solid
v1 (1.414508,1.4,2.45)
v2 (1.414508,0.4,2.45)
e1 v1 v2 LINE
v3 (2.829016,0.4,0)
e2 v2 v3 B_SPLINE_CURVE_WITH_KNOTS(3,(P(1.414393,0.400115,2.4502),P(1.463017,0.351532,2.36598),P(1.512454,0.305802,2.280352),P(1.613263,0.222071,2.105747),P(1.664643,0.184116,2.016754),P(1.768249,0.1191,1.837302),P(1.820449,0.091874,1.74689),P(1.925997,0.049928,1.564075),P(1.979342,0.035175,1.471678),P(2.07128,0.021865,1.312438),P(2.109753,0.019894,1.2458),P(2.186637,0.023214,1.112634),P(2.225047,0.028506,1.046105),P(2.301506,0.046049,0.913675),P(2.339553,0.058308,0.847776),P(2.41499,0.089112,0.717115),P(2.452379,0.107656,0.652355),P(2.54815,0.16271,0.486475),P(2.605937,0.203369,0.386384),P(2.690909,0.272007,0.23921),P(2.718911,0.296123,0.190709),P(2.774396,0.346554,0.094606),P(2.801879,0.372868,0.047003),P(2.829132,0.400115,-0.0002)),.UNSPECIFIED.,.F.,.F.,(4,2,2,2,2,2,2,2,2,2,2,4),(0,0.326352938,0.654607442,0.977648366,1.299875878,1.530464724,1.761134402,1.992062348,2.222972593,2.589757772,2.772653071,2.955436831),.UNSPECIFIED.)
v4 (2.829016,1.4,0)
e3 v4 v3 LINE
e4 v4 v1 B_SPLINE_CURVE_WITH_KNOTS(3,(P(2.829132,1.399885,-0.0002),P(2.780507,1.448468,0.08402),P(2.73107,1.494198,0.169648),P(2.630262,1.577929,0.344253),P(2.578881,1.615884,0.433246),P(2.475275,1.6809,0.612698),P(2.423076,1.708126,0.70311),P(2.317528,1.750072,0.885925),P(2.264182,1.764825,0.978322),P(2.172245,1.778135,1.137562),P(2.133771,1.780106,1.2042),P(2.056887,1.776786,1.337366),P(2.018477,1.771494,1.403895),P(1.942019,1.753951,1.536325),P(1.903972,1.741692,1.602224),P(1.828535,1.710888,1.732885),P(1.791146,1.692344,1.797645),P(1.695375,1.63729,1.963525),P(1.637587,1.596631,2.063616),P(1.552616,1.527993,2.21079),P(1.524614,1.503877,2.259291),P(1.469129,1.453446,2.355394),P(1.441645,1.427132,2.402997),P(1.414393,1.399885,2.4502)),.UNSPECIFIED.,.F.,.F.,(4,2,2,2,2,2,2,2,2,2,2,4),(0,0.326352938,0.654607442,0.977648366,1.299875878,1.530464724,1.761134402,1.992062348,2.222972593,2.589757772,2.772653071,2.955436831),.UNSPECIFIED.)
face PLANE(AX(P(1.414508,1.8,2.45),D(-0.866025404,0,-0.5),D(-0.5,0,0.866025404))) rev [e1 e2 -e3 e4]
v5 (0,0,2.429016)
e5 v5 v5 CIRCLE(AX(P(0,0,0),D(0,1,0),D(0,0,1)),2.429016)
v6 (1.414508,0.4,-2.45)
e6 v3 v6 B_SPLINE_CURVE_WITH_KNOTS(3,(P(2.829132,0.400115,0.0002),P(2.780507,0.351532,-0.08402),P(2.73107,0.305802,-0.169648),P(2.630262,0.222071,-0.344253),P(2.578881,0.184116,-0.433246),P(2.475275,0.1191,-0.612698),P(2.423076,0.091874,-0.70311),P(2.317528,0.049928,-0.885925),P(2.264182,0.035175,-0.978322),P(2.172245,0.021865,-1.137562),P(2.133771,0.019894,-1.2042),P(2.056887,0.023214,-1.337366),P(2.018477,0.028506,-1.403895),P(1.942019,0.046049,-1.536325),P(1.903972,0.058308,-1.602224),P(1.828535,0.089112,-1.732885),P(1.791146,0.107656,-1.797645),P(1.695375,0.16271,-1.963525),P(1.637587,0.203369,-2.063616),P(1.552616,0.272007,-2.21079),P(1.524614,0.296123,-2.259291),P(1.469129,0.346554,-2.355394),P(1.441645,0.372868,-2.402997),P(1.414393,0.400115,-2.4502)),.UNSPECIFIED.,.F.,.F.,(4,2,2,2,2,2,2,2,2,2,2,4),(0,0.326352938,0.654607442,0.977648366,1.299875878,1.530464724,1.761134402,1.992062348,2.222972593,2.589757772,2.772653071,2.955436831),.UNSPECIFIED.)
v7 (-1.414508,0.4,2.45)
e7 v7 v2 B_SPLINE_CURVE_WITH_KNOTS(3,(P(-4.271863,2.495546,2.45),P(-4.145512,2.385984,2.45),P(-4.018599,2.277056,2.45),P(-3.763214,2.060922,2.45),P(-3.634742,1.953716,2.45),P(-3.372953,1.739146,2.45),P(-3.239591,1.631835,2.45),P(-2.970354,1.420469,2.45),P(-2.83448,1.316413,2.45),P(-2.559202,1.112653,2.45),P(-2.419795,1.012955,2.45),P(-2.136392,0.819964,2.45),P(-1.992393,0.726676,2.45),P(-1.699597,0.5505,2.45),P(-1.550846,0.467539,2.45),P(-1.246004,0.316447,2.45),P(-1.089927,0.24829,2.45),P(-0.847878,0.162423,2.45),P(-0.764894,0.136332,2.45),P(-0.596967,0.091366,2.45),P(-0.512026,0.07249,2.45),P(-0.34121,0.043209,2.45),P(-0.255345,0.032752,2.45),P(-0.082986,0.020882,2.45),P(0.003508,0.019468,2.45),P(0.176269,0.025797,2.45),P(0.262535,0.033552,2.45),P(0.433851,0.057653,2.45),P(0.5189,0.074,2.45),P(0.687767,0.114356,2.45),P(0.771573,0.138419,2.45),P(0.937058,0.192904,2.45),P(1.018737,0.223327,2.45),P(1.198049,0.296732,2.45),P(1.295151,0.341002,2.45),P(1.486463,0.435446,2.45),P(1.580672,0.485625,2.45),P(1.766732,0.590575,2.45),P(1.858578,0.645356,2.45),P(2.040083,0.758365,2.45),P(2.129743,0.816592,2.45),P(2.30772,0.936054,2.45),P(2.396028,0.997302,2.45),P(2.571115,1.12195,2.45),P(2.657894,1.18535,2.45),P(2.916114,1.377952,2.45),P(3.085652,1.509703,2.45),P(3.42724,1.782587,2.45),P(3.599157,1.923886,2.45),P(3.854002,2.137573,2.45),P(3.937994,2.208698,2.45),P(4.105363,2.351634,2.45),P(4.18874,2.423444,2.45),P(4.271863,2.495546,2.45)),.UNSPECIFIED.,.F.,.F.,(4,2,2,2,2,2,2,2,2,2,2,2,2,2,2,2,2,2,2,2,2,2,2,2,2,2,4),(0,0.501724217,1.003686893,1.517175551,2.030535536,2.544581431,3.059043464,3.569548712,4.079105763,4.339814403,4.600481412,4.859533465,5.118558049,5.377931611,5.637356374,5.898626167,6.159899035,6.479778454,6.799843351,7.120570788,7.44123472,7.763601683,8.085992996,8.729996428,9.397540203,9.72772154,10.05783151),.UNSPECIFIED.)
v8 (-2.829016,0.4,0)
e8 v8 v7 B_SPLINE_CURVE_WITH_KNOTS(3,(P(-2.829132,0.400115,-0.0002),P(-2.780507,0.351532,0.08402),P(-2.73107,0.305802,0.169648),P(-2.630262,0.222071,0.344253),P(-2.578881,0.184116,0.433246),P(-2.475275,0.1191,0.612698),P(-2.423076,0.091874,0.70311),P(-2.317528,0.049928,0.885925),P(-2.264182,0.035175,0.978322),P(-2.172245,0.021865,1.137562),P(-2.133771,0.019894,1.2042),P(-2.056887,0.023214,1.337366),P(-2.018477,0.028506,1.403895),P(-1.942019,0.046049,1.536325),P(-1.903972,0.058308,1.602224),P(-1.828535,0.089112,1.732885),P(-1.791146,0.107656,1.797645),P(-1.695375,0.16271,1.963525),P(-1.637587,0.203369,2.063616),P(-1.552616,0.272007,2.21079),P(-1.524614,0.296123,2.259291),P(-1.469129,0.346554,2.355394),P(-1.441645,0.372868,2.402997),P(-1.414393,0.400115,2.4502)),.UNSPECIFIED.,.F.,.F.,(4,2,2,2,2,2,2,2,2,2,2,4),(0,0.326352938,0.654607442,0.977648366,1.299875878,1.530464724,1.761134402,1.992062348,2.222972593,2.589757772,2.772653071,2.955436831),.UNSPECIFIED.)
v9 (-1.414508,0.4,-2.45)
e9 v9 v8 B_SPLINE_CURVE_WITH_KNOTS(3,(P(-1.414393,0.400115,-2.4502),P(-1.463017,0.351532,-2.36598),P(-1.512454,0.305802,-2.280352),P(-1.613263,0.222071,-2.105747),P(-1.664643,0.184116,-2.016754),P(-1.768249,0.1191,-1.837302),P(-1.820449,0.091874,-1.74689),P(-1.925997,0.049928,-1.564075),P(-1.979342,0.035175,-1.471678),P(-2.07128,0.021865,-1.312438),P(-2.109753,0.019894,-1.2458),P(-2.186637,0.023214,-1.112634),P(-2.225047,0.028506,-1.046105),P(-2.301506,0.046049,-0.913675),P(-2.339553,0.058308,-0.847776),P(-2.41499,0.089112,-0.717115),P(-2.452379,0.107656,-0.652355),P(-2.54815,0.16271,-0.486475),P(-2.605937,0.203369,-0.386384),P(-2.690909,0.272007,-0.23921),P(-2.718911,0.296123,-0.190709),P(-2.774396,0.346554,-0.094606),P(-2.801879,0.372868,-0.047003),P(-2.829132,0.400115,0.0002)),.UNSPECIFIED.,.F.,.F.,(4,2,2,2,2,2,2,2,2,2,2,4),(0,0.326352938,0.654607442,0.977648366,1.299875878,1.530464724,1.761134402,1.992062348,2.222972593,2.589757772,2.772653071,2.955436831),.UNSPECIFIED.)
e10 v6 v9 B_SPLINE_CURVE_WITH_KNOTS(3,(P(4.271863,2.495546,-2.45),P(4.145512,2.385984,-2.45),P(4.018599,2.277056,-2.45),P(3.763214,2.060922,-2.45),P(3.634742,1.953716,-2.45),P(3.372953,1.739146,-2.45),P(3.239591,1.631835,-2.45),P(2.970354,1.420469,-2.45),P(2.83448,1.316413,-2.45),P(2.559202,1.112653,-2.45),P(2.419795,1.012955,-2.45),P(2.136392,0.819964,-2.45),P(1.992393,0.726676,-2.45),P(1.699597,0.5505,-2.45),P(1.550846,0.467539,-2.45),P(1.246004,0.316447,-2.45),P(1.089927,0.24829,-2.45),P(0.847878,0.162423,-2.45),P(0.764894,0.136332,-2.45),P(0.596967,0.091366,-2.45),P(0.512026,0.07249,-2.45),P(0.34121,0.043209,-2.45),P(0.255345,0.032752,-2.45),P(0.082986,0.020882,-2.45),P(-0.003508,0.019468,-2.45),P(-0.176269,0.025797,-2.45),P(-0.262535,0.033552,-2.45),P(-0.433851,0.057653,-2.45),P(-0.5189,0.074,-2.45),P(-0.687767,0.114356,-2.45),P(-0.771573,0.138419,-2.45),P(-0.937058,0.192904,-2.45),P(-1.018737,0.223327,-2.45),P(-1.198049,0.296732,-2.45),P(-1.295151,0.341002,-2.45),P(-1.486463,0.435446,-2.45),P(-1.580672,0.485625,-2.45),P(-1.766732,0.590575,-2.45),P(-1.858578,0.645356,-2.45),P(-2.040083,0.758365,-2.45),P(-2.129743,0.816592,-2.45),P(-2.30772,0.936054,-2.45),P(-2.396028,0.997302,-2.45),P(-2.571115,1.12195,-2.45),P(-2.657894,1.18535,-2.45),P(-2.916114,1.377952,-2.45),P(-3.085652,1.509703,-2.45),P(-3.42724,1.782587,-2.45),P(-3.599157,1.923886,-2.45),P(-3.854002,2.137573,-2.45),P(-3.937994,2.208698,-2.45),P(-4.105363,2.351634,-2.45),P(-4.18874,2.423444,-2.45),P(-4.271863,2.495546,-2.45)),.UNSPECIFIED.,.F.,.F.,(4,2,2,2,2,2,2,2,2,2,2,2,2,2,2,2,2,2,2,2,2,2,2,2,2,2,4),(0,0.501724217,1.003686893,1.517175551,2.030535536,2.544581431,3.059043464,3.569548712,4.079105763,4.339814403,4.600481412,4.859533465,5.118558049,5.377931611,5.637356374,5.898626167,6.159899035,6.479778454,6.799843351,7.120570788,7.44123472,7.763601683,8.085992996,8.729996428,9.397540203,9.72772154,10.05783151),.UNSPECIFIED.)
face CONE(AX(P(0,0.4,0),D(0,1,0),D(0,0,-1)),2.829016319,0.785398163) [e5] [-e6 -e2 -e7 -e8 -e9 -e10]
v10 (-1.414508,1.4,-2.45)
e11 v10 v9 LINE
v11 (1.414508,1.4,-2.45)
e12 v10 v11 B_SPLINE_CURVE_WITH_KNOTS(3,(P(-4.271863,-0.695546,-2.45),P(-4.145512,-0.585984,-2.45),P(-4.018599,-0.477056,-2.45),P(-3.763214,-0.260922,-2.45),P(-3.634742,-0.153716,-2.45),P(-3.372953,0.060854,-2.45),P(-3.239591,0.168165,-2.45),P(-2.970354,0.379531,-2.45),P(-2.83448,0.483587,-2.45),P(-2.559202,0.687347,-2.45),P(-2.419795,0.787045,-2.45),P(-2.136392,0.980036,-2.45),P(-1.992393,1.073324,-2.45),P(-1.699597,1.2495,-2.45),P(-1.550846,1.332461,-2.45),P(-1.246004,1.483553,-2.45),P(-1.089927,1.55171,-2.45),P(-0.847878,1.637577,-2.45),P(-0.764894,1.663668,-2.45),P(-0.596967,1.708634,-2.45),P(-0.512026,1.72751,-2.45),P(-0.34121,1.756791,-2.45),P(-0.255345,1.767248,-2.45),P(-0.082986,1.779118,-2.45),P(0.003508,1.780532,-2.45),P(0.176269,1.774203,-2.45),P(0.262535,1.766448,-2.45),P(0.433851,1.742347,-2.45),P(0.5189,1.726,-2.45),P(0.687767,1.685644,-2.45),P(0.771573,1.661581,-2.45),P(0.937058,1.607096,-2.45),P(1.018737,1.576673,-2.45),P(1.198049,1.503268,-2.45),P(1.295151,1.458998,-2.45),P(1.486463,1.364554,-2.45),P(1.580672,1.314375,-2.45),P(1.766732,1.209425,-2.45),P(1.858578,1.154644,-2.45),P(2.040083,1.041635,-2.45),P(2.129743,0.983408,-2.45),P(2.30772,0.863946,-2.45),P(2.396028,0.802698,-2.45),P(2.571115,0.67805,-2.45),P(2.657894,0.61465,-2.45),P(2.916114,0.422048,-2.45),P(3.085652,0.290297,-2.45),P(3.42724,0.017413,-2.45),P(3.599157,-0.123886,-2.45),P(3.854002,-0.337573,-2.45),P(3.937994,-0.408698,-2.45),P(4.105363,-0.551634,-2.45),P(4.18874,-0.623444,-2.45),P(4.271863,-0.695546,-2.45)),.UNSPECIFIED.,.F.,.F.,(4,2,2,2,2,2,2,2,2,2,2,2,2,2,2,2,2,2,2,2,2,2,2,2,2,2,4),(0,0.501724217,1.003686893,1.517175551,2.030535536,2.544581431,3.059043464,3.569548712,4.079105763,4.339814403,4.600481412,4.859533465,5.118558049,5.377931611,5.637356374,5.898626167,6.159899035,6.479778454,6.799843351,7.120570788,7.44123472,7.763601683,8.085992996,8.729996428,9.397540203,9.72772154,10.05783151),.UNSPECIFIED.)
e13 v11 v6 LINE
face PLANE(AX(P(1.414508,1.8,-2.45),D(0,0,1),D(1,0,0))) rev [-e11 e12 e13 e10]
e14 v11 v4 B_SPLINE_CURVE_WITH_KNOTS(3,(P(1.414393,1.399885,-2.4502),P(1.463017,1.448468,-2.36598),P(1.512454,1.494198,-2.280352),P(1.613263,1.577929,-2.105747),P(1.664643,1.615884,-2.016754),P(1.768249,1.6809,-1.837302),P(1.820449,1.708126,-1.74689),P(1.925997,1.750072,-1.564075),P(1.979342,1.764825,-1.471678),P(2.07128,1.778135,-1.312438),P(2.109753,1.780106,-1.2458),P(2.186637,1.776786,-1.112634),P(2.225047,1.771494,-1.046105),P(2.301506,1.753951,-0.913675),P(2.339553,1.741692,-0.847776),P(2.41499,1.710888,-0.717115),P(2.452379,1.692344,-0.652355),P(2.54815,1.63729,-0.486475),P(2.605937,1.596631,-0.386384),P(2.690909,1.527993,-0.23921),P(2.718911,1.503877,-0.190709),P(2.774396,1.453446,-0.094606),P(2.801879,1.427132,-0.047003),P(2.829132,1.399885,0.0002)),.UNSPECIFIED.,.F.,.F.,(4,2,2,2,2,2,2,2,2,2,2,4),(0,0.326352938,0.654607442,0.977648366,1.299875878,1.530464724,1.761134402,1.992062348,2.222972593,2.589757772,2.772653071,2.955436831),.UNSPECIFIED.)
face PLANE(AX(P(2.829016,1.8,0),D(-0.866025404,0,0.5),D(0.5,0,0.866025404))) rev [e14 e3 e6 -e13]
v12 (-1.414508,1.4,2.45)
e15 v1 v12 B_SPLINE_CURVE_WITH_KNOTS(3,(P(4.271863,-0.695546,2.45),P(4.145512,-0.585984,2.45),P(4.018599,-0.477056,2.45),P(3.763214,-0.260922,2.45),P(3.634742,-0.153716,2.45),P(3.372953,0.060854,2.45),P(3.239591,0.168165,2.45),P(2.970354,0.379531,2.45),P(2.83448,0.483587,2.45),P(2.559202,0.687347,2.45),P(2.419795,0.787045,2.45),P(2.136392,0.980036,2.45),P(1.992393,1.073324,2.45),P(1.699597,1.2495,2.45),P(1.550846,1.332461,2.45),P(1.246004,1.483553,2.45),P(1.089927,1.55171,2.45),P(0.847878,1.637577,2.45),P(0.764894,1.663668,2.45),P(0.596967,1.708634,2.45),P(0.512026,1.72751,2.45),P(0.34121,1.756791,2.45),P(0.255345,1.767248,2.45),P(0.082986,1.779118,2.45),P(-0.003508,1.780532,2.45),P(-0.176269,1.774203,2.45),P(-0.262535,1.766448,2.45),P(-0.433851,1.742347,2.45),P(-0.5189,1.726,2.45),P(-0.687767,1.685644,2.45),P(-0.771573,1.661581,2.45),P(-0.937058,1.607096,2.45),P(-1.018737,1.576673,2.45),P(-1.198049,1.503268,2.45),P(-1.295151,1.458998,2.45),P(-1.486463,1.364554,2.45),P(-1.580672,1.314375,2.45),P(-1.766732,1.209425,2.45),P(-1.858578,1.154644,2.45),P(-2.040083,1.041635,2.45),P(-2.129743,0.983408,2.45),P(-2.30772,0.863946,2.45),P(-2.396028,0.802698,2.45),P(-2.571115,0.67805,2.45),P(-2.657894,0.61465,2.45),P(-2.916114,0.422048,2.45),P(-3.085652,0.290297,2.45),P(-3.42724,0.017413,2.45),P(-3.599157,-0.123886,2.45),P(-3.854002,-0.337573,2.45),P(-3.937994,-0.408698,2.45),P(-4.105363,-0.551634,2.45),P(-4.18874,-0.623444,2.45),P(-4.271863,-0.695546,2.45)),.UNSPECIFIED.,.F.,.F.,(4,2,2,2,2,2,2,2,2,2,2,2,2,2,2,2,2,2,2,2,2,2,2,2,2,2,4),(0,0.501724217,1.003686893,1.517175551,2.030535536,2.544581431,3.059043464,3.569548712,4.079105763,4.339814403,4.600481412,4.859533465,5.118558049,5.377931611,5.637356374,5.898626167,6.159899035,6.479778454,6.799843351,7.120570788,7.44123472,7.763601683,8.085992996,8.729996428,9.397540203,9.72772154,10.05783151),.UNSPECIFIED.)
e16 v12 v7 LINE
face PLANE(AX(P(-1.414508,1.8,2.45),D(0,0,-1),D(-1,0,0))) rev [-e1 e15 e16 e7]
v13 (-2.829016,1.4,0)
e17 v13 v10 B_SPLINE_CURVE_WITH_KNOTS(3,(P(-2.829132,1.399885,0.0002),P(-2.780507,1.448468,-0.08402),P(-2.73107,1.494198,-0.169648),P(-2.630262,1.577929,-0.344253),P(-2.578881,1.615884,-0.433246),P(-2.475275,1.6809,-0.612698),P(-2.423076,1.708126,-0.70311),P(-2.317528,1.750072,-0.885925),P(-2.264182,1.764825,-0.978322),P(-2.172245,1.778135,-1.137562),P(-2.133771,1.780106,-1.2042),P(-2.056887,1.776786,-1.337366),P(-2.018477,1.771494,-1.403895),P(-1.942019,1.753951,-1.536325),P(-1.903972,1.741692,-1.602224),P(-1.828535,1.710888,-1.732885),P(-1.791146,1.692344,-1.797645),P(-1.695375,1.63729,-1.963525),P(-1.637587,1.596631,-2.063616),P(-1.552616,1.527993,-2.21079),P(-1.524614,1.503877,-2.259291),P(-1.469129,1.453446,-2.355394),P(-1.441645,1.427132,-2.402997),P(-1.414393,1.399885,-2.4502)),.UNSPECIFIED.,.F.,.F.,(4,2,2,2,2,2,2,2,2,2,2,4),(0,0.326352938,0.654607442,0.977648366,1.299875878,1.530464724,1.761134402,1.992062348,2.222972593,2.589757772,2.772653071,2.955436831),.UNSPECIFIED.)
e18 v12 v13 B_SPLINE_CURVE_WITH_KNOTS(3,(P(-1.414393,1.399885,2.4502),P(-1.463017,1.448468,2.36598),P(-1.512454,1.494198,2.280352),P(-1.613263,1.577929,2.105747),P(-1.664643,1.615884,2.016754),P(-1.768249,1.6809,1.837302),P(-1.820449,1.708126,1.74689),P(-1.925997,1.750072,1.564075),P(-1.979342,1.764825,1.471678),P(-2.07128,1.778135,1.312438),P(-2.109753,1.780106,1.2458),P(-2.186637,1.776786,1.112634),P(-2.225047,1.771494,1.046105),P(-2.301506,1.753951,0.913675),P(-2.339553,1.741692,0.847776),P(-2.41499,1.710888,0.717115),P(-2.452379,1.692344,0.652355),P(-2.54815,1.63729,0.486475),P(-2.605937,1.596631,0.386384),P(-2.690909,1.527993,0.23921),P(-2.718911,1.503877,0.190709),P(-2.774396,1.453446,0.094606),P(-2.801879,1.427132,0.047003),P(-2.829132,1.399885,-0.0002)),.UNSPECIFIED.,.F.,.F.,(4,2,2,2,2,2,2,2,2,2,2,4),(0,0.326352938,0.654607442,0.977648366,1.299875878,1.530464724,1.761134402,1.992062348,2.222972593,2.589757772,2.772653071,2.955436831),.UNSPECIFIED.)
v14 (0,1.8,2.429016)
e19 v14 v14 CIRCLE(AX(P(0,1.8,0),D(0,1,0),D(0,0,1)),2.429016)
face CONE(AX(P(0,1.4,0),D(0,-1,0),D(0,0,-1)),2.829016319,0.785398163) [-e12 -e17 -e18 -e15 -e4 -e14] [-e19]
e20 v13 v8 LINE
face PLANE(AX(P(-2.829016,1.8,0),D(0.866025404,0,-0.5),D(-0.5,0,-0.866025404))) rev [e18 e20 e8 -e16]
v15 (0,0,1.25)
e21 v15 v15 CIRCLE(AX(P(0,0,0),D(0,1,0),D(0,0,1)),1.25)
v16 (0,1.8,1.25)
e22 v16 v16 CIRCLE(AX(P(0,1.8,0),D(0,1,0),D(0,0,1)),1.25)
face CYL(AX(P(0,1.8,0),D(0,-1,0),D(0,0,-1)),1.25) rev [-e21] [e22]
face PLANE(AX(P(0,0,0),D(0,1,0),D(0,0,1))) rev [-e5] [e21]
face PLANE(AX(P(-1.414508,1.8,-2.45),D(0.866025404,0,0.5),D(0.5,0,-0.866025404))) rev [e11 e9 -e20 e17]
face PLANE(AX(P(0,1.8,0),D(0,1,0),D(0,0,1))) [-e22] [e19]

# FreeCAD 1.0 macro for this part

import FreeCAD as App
import Part
import Sketcher
Q = App.Units.Quantity

doc = App.newDocument("Part")
params = doc.addObject("Spreadsheet::Sheet", "Params")
for row, (alias, value) in enumerate([
    ("sketch1_diameter", "2.5 mm"),
    ("pad1_length", "1.8 mm"),
    ("sketch2_width", "0.4 mm"),
    ("groove_angle", "360 deg"),
], start=1):
    params.set(f"A{row}", alias)
    params.set(f"B{row}", "=" + value)
    params.setAlias(f"B{row}", alias)

body = doc.addObject("PartDesign::Body", "Body")

# Sketch on XZ plane
sketch1 = body.newObject("Sketcher::SketchObject", "Sketch")
sketch1.AttachmentSupport = (doc.getObject("XZ_Plane"), [""])
sketch1.MapMode = "FlatFace"
sketch1.addGeometry([
    Part.LineSegment(App.Vector(1.414508, -2.45, 0), App.Vector(-1.414508, -2.45, 0)),  # 0
    Part.LineSegment(App.Vector(-1.414508, -2.45, 0), App.Vector(-2.829016, 0, 0)),  # 1
    Part.LineSegment(App.Vector(-2.829016, 0, 0), App.Vector(-1.414508, 2.45, 0)),  # 2
    Part.LineSegment(App.Vector(-1.414508, 2.45, 0), App.Vector(1.414508, 2.45, 0)),  # 3
    Part.LineSegment(App.Vector(1.414508, 2.45, 0), App.Vector(2.829016, 0, 0)),  # 4
    Part.LineSegment(App.Vector(2.829016, 0, 0), App.Vector(1.414508, -2.45, 0)),  # 5
    Part.Circle(App.Vector(0, 0, 0), App.Vector(0, 0, 1), 1.25),  # 6
], False)
sketch1.addConstraint([
    Sketcher.Constraint("Coincident", 0, 2, 1, 1),
    Sketcher.Constraint("Coincident", 1, 2, 2, 1),
    Sketcher.Constraint("Coincident", 2, 2, 3, 1),
    Sketcher.Constraint("Coincident", 3, 2, 4, 1),
    Sketcher.Constraint("Coincident", 4, 2, 5, 1),
    Sketcher.Constraint("Coincident", 5, 2, 0, 1),
    Sketcher.Constraint("Horizontal", 0),
    Sketcher.Constraint("Horizontal", 3),
    Sketcher.Constraint("Coincident", 6, 3, -1, 1),
    Sketcher.Constraint("Symmetric", 0, 2, 3, 2, -1, 1),
    Sketcher.Constraint("Symmetric", 1, 2, 4, 2, -1, 1),
    Sketcher.Constraint("PointOnObject", 1, 2, -1),
    Sketcher.Constraint("Parallel", 2, 5),
    Sketcher.Constraint("Vertical", 0, 2, 2, 2),
    Sketcher.Constraint("Diameter", 6, 2.5),
    Sketcher.Constraint("Angle", 1, Q("120 deg")),
    Sketcher.Constraint("DistanceY", 0, 2, 2, 2, 4.9),
    Sketcher.Constraint("DistanceX", 0, 2, 0, 1, 2.829016),
])
sketch1.setExpression("Constraints[14]", "Params.sketch1_diameter")
pad1 = body.newObject("PartDesign::Pad", "Pad")
pad1.Profile = sketch1
pad1.setExpression("Length", "Params.pad1_length")
pad1.Reversed = True

# Sketch on XY plane
sketch2 = body.newObject("Sketcher::SketchObject", "Sketch001")
sketch2.AttachmentSupport = (doc.getObject("XY_Plane"), [""])
sketch2.MapMode = "FlatFace"
sketch2.addGeometry([
    Part.LineSegment(App.Vector(2.829016, 1.8, 0), App.Vector(2.829016, 1.4, 0)),
    Part.LineSegment(App.Vector(2.829016, 1.4, 0), App.Vector(2.429016, 1.8, 0)),
    Part.LineSegment(App.Vector(2.429016, 1.8, 0), App.Vector(2.829016, 1.8, 0)),
], False)
sketch2.addConstraint([
    Sketcher.Constraint("Coincident", 0, 2, 1, 1),
    Sketcher.Constraint("Coincident", 1, 2, 2, 1),
    Sketcher.Constraint("Coincident", 2, 2, 0, 1),
    Sketcher.Constraint("Vertical", 0),
    Sketcher.Constraint("Horizontal", 2),
    Sketcher.Constraint("Equal", 2, 0),
    Sketcher.Constraint("DistanceX", 2, 1, 2, 2, 0.4),
    Sketcher.Constraint("DistanceY", -1, 1, 0, 2, 1.4),
    Sketcher.Constraint("DistanceX", -1, 1, 0, 2, 2.829016),
])
sketch2.setExpression("Constraints[6]", "Params.sketch2_width")
groove = body.newObject("PartDesign::Groove", "Groove")
groove.Profile = sketch2
groove.ReferenceAxis = (sketch2, ["V_Axis"])
groove.setExpression("Angle", "Params.groove_angle")
doc.recompute()

datumplane = body.newObject("PartDesign::Plane", "DatumPlane")
datumplane.AttachmentSupport = (doc.getObject("XZ_Plane"), [""])
datumplane.MapMode = "FlatFace"
datumplane.AttachmentOffset = App.Placement(App.Vector(0, 0, -0.9), App.Rotation())
mirrored = body.newObject("PartDesign::Mirrored", "Mirrored")
mirrored.Originals = [groove]
mirrored.MirrorPlane = (datumplane, [""])
body.Tip = mirrored

doc.recompute()
